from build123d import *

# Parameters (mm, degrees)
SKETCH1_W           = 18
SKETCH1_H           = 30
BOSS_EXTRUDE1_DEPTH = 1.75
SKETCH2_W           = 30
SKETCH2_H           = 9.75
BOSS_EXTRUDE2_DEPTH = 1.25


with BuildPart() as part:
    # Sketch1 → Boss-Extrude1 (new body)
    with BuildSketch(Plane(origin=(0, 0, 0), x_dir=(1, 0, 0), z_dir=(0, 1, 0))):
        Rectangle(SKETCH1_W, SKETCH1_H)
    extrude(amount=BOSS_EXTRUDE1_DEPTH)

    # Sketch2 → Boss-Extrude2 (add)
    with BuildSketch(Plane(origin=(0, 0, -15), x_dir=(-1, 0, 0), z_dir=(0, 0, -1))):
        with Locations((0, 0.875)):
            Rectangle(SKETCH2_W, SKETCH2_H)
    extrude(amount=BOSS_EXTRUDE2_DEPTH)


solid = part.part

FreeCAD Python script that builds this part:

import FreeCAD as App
import Part
import Sketcher
from FreeCAD import Vector
Q = App.Units.Quantity

doc = App.newDocument("Part")
body = doc.addObject("PartDesign::Body", "Body")

sketch1 = body.newObject("Sketcher::SketchObject", "Sketch")
sketch1.AttachmentSupport = (doc.getObject("XZ_Plane"), [""])
sketch1.MapMode = "FlatFace"
sketch1.addGeometry([
    Part.LineSegment(Vector(-9, -15, 0), Vector(-9, 15, 0)),
    Part.LineSegment(Vector(-9, 15, 0), Vector(9, 15, 0)),
    Part.LineSegment(Vector(9, 15, 0), Vector(9, -15, 0)),
    Part.LineSegment(Vector(9, -15, 0), Vector(-9, -15, 0)),
], False)
sketch1.addConstraint([
    Sketcher.Constraint("Coincident", 0, 2, 1, 1),
    Sketcher.Constraint("Coincident", 1, 2, 2, 1),
    Sketcher.Constraint("Coincident", 2, 2, 3, 1),
    Sketcher.Constraint("Coincident", 3, 2, 0, 1),
    Sketcher.Constraint("Vertical", 0),
    Sketcher.Constraint("Horizontal", 1),
    Sketcher.Constraint("Vertical", 2),
    Sketcher.Constraint("Horizontal", 3),
    Sketcher.Constraint("Symmetric", 0, 2, 2, 2, -1, 1),
    Sketcher.Constraint("DistanceX", 1, 1, 1, 2, Q("18 mm")),
    Sketcher.Constraint("DistanceY", 0, 1, 0, 2, Q("30 mm")),
])
pad1 = body.newObject("PartDesign::Pad", "Pad")
pad1.Profile = sketch1
pad1.Length = 1.75
pad1.Reversed = True

sketch2 = body.newObject("Sketcher::SketchObject", "Sketch001")
sketch2.AttachmentSupport = (doc.getObject("XY_Plane"), [""])
sketch2.MapMode = "FlatFace"
sketch2.AttachmentOffset = App.Placement(Vector(0, 0, -15), App.Rotation())
sketch2.addGeometry([
    Part.LineSegment(Vector(15, 6, 0), Vector(15, -4, 0)),
    Part.LineSegment(Vector(15, -4, 0), Vector(-15, -4, 0)),
    Part.LineSegment(Vector(-15, -4, 0), Vector(-15, 6, 0)),
    Part.LineSegment(Vector(-15, 6, 0), Vector(15, 6, 0)),
], False)
sketch2.addConstraint([
    Sketcher.Constraint("Coincident", 0, 2, 1, 1),
    Sketcher.Constraint("Coincident", 1, 2, 2, 1),
    Sketcher.Constraint("Coincident", 2, 2, 3, 1),
    Sketcher.Constraint("Coincident", 3, 2, 0, 1),
    Sketcher.Constraint("Vertical", 0),
    Sketcher.Constraint("Horizontal", 1),
    Sketcher.Constraint("Vertical", 2),
    Sketcher.Constraint("Horizontal", 3),
    Sketcher.Constraint("DistanceX", 1, 2, 1, 1, Q("30 mm")),
    Sketcher.Constraint("DistanceX", -1, 1, 0, 2, Q("15 mm")),
    Sketcher.Constraint("DistanceY", 0, 2, -1, 1, Q("4 mm")),
    Sketcher.Constraint("DistanceY", 0, 2, 0, 1, Q("9.75 mm")),
])
pad2 = body.newObject("PartDesign::Pad", "Pad001")
pad2.Profile = sketch2
pad2.Length = 1.25
pad2.Reversed = True

doc.recompute()
